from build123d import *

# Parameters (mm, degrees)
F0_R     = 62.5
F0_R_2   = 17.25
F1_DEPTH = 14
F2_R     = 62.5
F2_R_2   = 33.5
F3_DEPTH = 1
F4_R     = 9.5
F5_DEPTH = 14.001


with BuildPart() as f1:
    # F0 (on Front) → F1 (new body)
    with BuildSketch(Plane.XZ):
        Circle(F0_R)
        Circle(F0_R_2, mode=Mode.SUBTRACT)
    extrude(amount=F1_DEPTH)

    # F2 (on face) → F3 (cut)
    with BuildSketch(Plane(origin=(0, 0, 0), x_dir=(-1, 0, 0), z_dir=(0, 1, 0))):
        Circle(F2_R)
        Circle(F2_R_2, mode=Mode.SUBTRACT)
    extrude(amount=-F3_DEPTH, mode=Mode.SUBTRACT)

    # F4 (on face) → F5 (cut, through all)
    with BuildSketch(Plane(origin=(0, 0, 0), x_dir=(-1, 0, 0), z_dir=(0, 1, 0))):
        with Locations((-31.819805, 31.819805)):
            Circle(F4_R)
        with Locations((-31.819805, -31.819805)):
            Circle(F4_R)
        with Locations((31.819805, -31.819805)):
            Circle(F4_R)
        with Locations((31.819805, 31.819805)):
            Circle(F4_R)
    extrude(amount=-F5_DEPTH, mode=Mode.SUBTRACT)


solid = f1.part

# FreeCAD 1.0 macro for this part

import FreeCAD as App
import Part
import Sketcher
Q = App.Units.Quantity

doc = App.newDocument("Part")
body = doc.addObject("PartDesign::Body", "Body")

# Sketch on XZ plane
sketch1 = doc.addObject("Sketcher::SketchObject", "Sketch")
body.addObject(sketch1)
sketch1.AttachmentSupport = (doc.XZ_Plane, [""])
sketch1.MapMode = "FlatFace"
sketch1.addGeometry(Part.Circle(App.Vector(0, 0, 0), App.Vector(0, 0, 1), 62), False)
sketch1.addGeometry(Part.Circle(App.Vector(0, 0, 0), App.Vector(0, 0, 1), 17), False)
sketch1.addConstraint(Sketcher.Constraint("Coincident", 0, 3, -1, 1))
sketch1.addConstraint(Sketcher.Constraint("Coincident", 1, 3, -1, 1))
sketch1.addConstraint(Sketcher.Constraint("Diameter", 0, Q("125 mm")))
sketch1.addConstraint(Sketcher.Constraint("Diameter", 1, Q("34.5 mm")))
pad1 = doc.addObject("PartDesign::Pad", "Pad")
body.addObject(pad1)
pad1.Profile = sketch1
pad1.Length = 14

# Sketch on XZ plane
sketch2 = doc.addObject("Sketcher::SketchObject", "Sketch001")
body.addObject(sketch2)
sketch2.AttachmentSupport = (doc.XZ_Plane, [""])
sketch2.MapMode = "FlatFace"
sketch2.addGeometry(Part.Circle(App.Vector(0, 0, 0), App.Vector(0, 0, 1), 62), False)
sketch2.addGeometry(Part.Circle(App.Vector(0, 0, 0), App.Vector(0, 0, 1), 34), False)
sketch2.addConstraint(Sketcher.Constraint("Coincident", 0, 3, -1, 1))
sketch2.addConstraint(Sketcher.Constraint("Coincident", 1, 3, -1, 1))
sketch2.addConstraint(Sketcher.Constraint("Diameter", 0, Q("125 mm")))
sketch2.addConstraint(Sketcher.Constraint("Diameter", 1, Q("67 mm")))
pocket1 = doc.addObject("PartDesign::Pocket", "Pocket")
body.addObject(pocket1)
pocket1.Profile = sketch2
pocket1.Length = 1
pocket1.Reversed = True

# Sketch on XZ plane
sketch3 = doc.addObject("Sketcher::SketchObject", "Sketch002")
body.addObject(sketch3)
sketch3.AttachmentSupport = (doc.XZ_Plane, [""])
sketch3.MapMode = "FlatFace"
sketch3.addGeometry(Part.Circle(App.Vector(32, 32, 0), App.Vector(0, 0, 1), 10), False)
sketch3.addGeometry(Part.Circle(App.Vector(32, -32, 0), App.Vector(0, 0, 1), 10), False)
sketch3.addGeometry(Part.Circle(App.Vector(-32, -32, 0), App.Vector(0, 0, 1), 10), False)
sketch3.addGeometry(Part.Circle(App.Vector(-32, 32, 0), App.Vector(0, 0, 1), 10), False)
sketch3.addConstraint(Sketcher.Constraint("Equal", 0, 1))
sketch3.addConstraint(Sketcher.Constraint("Equal", 1, 2))
sketch3.addConstraint(Sketcher.Constraint("Equal", 2, 3))
sketch3.addConstraint(Sketcher.Constraint("Symmetric", 0, 3, 2, 3, -1, 1))
sketch3.addConstraint(Sketcher.Constraint("Symmetric", 1, 3, 3, 3, -1, 1))
sketch3.addConstraint(Sketcher.Constraint("Symmetric", 1, 3, 2, 3, -2))
sketch3.addConstraint(Sketcher.Constraint("Diameter", 0, Q("19 mm")))
sketch3.addConstraint(Sketcher.Constraint("DistanceY", 1, 3, 0, 3, Q("63.63961 mm")))
sketch3.addConstraint(Sketcher.Constraint("DistanceX", 2, 3, 1, 3, Q("63.63961 mm")))
pocket2 = doc.addObject("PartDesign::Pocket", "Pocket001")
body.addObject(pocket2)
pocket2.Profile = sketch3
pocket2.Type = "ThroughAll"
pocket2.Reversed = True

doc.recompute()
